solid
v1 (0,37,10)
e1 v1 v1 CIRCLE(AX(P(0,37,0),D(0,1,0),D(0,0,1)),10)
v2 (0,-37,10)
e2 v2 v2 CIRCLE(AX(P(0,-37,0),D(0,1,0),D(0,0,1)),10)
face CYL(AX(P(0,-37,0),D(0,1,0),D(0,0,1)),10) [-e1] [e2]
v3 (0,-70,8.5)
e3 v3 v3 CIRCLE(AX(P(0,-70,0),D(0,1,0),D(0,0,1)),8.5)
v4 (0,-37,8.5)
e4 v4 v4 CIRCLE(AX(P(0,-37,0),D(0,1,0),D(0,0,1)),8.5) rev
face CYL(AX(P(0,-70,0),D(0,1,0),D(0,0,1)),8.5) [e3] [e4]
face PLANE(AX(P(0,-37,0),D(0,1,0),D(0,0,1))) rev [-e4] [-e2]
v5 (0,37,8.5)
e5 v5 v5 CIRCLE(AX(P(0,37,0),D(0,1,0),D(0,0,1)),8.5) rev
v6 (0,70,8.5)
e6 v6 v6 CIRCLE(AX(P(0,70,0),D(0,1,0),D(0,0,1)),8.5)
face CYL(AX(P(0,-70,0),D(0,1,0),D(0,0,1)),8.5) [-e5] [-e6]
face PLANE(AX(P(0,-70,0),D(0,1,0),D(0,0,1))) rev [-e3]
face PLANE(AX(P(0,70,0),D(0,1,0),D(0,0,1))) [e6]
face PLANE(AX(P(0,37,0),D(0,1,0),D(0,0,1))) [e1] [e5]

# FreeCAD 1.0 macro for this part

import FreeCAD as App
import Part
import Sketcher
from FreeCAD import Vector
Q = App.Units.Quantity

doc = App.newDocument("Part")
params = doc.addObject("Spreadsheet::Sheet", "Params")
for row, (alias, value) in enumerate([
    ("sketch1_diameter", "17 mm"),
    ("pad1_length", "70 mm"),
    ("pad1_length2", "70 mm"),
    ("sketch2_diameter", "20 mm"),
    ("pad2_length", "37 mm"),
    ("pad2_length2", "37 mm"),
], start=1):
    params.set(f"A{row}", alias)
    params.set(f"B{row}", "=" + value)
    params.setAlias(f"B{row}", alias)

body = doc.addObject("PartDesign::Body", "Body")

# Sketch on XZ plane
sketch1 = body.newObject("Sketcher::SketchObject", "Sketch")
sketch1.AttachmentSupport = (doc.getObject("XZ_Plane"), [""])
sketch1.MapMode = "FlatFace"
sketch1.addGeometry(Part.Circle(Vector(0, 0, 0), Vector(0, 0, 1), 8), False)
sketch1.addConstraint([
    Sketcher.Constraint("Coincident", 0, 3, -1, 1),
    Sketcher.Constraint("Diameter", 0, Q("17 mm")),
])
sketch1.setExpression("Constraints[1]", "Params.sketch1_diameter")
pad1 = body.newObject("PartDesign::Pad", "Pad")
pad1.Profile = sketch1
pad1.Type = "TwoLengths"
pad1.setExpression("Length", "Params.pad1_length")
pad1.setExpression("Length2", "Params.pad1_length2")
pad1.Reversed = True

# Sketch on XZ plane
sketch2 = body.newObject("Sketcher::SketchObject", "Sketch001")
sketch2.AttachmentSupport = (doc.getObject("XZ_Plane"), [""])
sketch2.MapMode = "FlatFace"
sketch2.addGeometry(Part.Circle(Vector(0, 0, 0), Vector(0, 0, 1), 10), False)
sketch2.addConstraint([
    Sketcher.Constraint("Coincident", 0, 3, -1, 1),
    Sketcher.Constraint("Diameter", 0, Q("20 mm")),
])
sketch2.setExpression("Constraints[1]", "Params.sketch2_diameter")
pad2 = body.newObject("PartDesign::Pad", "Pad001")
pad2.Profile = sketch2
pad2.Type = "TwoLengths"
pad2.setExpression("Length", "Params.pad2_length")
pad2.setExpression("Length2", "Params.pad2_length2")
pad2.Reversed = True

doc.recompute()
